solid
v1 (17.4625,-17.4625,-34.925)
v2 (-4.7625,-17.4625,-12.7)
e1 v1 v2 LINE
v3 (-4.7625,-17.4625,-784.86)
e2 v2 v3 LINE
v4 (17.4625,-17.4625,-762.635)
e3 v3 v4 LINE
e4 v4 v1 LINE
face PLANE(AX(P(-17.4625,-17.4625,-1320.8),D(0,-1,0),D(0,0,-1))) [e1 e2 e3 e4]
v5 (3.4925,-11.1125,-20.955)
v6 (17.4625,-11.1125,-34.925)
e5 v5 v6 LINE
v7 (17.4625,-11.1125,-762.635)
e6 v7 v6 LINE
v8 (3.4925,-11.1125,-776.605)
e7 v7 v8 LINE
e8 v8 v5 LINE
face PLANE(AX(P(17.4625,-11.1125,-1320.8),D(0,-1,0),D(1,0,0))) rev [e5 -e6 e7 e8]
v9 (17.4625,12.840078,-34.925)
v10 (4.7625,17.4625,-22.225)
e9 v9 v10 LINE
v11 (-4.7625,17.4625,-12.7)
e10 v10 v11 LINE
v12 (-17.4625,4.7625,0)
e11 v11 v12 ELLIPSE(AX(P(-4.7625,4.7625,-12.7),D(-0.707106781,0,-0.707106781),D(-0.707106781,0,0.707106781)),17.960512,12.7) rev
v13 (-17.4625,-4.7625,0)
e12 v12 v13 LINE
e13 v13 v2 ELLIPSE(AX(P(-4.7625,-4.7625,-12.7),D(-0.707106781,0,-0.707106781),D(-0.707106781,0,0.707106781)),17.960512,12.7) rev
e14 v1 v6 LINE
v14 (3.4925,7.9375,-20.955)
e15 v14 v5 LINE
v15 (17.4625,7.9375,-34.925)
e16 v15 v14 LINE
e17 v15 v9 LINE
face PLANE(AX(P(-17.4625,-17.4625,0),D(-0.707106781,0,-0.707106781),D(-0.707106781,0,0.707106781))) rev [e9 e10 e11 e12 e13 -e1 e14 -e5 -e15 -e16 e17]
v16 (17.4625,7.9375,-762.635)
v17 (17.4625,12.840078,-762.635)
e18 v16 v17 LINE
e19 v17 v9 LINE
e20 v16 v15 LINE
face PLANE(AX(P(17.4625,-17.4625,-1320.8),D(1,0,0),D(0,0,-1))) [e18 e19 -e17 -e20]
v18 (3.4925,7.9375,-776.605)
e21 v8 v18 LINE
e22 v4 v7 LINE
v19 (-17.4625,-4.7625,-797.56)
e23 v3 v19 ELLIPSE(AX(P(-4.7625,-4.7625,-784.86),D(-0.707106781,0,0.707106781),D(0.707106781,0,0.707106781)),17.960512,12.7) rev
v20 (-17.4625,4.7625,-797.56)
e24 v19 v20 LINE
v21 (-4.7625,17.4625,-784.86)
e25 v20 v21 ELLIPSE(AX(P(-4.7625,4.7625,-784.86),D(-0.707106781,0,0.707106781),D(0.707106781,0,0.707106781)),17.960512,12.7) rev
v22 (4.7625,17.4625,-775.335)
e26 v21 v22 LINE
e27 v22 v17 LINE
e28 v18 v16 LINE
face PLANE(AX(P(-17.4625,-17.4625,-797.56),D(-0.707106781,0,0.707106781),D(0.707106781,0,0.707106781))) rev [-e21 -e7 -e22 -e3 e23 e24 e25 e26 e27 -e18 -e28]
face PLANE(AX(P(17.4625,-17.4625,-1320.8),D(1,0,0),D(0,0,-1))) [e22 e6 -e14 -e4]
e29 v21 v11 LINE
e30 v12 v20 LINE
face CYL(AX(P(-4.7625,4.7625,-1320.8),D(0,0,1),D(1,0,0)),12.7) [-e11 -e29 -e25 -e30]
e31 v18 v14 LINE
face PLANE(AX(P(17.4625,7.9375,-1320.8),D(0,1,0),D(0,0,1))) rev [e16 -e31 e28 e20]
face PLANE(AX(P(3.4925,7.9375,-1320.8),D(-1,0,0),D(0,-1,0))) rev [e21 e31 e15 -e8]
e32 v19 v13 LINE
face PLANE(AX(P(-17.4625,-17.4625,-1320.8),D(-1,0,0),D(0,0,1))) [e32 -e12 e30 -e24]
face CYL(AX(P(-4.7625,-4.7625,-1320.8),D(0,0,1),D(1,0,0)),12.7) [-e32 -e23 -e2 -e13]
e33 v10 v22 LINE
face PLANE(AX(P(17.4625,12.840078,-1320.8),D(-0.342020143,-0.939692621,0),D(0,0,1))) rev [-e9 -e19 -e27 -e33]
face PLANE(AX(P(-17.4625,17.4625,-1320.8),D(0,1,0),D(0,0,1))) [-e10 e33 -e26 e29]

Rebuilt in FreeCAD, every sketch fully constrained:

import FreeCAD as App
import Part
import Sketcher
from FreeCAD import Vector
Q = App.Units.Quantity


def edges_at(feature, points):
    """Names of the edges that pass closest to the given points."""
    edges = feature.Shape.Edges
    near = lambda p: min(range(len(edges)), key=lambda i: edges[i].distToShape(Part.Vertex(*p))[0])
    return sorted({f"Edge{near(p) + 1}" for p in points})


def add_polygon(sketch, points):
    """Adds a closed chain of lines whose ends are joined by coincident constraints."""
    first, n = sketch.GeometryCount, len(points)
    for a, b in zip(points, points[1:] + points[:1]):
        sketch.addGeometry(Part.LineSegment(App.Vector(*a, 0), App.Vector(*b, 0)), False)
    for i in range(n):
        sketch.addConstraint(Sketcher.Constraint("Coincident", first + i, 2, first + (i + 1) % n, 1))

doc = App.newDocument("Part")
params = doc.addObject("Spreadsheet::Sheet", "Params")
for row, (alias, value) in enumerate([
    ("sketch1_width", "1.375 in"),
    ("pad1_length", "52 in"),
    ("sketch2_width", "0.55 in"),
    ("sketch2_height", "0.75 in"),
    ("fillet_radius", "0.5 in"),
    ("chamfer_size", "0.5 in"),
    ("chamfer_size2", "4.622422 mm"),
    ("sketch3_height", "20.6 in"),
    ("sketch3_width", "1.375 in"),
], start=1):
    params.set(f"A{row}", alias)
    params.set(f"B{row}", "=" + value)
    params.setAlias(f"B{row}", alias)

body = doc.addObject("PartDesign::Body", "Body")

# Sketch on XY plane
sketch1 = doc.addObject("Sketcher::SketchObject", "Sketch")
body.addObject(sketch1)
sketch1.AttachmentSupport = (doc.XY_Plane, [""])
sketch1.MapMode = "FlatFace"
add_polygon(sketch1, [(-17, 17), (-17, -17), (17, -17), (17, 17)])  # lines 0-3
sketch1.addConstraint(Sketcher.Constraint("Vertical", 0))
sketch1.addConstraint(Sketcher.Constraint("Horizontal", 1))
sketch1.addConstraint(Sketcher.Constraint("Vertical", 2))
sketch1.addConstraint(Sketcher.Constraint("Horizontal", 3))
sketch1.addConstraint(Sketcher.Constraint("Symmetric", 0, 2, 2, 2, -1, 1))
sketch1.addConstraint(Sketcher.Constraint("Equal", 3, 0))
sketch1.addConstraint(Sketcher.Constraint("DistanceX", 1, 1, 1, 2, Q("1.375 in")))
sketch1.setExpression("Constraints[10]", "Params.sketch1_width")
pad1 = doc.addObject("PartDesign::Pad", "Pad")
body.addObject(pad1)
pad1.Profile = sketch1
pad1.setExpression("Length", "Params.pad1_length")
pad1.Reversed = True

# Sketch on XY plane
sketch2 = doc.addObject("Sketcher::SketchObject", "Sketch001")
body.addObject(sketch2)
sketch2.AttachmentSupport = (doc.XY_Plane, [""])
sketch2.MapMode = "FlatFace"
add_polygon(sketch2, [(3, 8), (3, -11), (17, -11), (17, 8)])  # lines 0-3
sketch2.addConstraint(Sketcher.Constraint("Vertical", 0))
sketch2.addConstraint(Sketcher.Constraint("Horizontal", 1))
sketch2.addConstraint(Sketcher.Constraint("Vertical", 2))
sketch2.addConstraint(Sketcher.Constraint("Horizontal", 3))
sketch2.addConstraint(Sketcher.Constraint("DistanceX", 1, 1, 1, 2, Q("0.55 in")))
sketch2.addConstraint(Sketcher.Constraint("DistanceY", 0, 2, 0, 1, Q("0.75 in")))
sketch2.addConstraint(Sketcher.Constraint("DistanceY", 0, 2, -1, 1, Q("0.4375 in")))
sketch2.addConstraint(Sketcher.Constraint("DistanceX", -1, 1, 1, 2, Q("0.6875 in")))
sketch2.setExpression("Constraints[8]", "Params.sketch2_width")
sketch2.setExpression("Constraints[9]", "Params.sketch2_height")
pocket1 = doc.addObject("PartDesign::Pocket", "Pocket")
body.addObject(pocket1)
pocket1.Profile = sketch2
pocket1.Type = "ThroughAll"
doc.recompute()

fillet = doc.addObject("PartDesign::Fillet", "Fillet")
body.addObject(fillet)
fillet.Base = (pocket1, edges_at(pocket1, [(-17.462, -17.462, -660.4), (-17.462, 17.462, -660.4)]))
fillet.setExpression("Radius", "Params.fillet_radius")
doc.recompute()

chamfer = doc.addObject("PartDesign::Chamfer", "Chamfer")
body.addObject(chamfer)
chamfer.Base = (fillet, edges_at(fillet, [(17.462, 17.462, -660.4)]))
chamfer.ChamferType = "Two distances"
chamfer.setExpression("Size", "Params.chamfer_size")
chamfer.setExpression("Size2", "Params.chamfer_size2")

# Sketch on XZ plane
sketch3 = doc.addObject("Sketcher::SketchObject", "Sketch002")
body.addObject(sketch3)
sketch3.AttachmentSupport = (doc.XZ_Plane, [""])
sketch3.MapMode = "FlatFace"
sketch3.AttachmentOffset = App.Placement(Vector(0, 0, -0.6875 * 25.4), App.Rotation())
add_polygon(sketch3, [(17, -35), (-17, 0), (17, 0)])  # lines 0-2
add_polygon(sketch3, [(-17, -798), (17, -763), (17, -1321), (-17, -1321)])  # lines 3-6
sketch3.addConstraint(Sketcher.Constraint("Horizontal", 1))
sketch3.addConstraint(Sketcher.Constraint("Vertical", 2))
sketch3.addConstraint(Sketcher.Constraint("Vertical", 4))
sketch3.addConstraint(Sketcher.Constraint("Horizontal", 5))
sketch3.addConstraint(Sketcher.Constraint("Vertical", 6))
sketch3.addConstraint(Sketcher.Constraint("Symmetric", 0, 2, 1, 2, -1, 1))
sketch3.addConstraint(Sketcher.Constraint("Perpendicular", 0, 3))
sketch3.addConstraint(Sketcher.Constraint("Vertical", 2, 2, 3, 2))
sketch3.addConstraint(Sketcher.Constraint("Vertical", 0, 2, 5, 2))
sketch3.addConstraint(Sketcher.Constraint("Equal", 5, 2))
sketch3.addConstraint(Sketcher.Constraint("DistanceY", 6, 1, 6, 2, Q("20.6 in")))
sketch3.addConstraint(Sketcher.Constraint("DistanceY", 4, 2, -1, 1, Q("52 in")))
sketch3.addConstraint(Sketcher.Constraint("DistanceX", 1, 1, 1, 2, Q("1.375 in")))
sketch3.setExpression("Constraints[17]", "Params.sketch3_height")
sketch3.setExpression("Constraints[19]", "Params.sketch3_width")
pocket2 = doc.addObject("PartDesign::Pocket", "Pocket001")
body.addObject(pocket2)
pocket2.Profile = sketch3
pocket2.Type = "ThroughAll"
pocket2.Reversed = True

doc.recompute()
